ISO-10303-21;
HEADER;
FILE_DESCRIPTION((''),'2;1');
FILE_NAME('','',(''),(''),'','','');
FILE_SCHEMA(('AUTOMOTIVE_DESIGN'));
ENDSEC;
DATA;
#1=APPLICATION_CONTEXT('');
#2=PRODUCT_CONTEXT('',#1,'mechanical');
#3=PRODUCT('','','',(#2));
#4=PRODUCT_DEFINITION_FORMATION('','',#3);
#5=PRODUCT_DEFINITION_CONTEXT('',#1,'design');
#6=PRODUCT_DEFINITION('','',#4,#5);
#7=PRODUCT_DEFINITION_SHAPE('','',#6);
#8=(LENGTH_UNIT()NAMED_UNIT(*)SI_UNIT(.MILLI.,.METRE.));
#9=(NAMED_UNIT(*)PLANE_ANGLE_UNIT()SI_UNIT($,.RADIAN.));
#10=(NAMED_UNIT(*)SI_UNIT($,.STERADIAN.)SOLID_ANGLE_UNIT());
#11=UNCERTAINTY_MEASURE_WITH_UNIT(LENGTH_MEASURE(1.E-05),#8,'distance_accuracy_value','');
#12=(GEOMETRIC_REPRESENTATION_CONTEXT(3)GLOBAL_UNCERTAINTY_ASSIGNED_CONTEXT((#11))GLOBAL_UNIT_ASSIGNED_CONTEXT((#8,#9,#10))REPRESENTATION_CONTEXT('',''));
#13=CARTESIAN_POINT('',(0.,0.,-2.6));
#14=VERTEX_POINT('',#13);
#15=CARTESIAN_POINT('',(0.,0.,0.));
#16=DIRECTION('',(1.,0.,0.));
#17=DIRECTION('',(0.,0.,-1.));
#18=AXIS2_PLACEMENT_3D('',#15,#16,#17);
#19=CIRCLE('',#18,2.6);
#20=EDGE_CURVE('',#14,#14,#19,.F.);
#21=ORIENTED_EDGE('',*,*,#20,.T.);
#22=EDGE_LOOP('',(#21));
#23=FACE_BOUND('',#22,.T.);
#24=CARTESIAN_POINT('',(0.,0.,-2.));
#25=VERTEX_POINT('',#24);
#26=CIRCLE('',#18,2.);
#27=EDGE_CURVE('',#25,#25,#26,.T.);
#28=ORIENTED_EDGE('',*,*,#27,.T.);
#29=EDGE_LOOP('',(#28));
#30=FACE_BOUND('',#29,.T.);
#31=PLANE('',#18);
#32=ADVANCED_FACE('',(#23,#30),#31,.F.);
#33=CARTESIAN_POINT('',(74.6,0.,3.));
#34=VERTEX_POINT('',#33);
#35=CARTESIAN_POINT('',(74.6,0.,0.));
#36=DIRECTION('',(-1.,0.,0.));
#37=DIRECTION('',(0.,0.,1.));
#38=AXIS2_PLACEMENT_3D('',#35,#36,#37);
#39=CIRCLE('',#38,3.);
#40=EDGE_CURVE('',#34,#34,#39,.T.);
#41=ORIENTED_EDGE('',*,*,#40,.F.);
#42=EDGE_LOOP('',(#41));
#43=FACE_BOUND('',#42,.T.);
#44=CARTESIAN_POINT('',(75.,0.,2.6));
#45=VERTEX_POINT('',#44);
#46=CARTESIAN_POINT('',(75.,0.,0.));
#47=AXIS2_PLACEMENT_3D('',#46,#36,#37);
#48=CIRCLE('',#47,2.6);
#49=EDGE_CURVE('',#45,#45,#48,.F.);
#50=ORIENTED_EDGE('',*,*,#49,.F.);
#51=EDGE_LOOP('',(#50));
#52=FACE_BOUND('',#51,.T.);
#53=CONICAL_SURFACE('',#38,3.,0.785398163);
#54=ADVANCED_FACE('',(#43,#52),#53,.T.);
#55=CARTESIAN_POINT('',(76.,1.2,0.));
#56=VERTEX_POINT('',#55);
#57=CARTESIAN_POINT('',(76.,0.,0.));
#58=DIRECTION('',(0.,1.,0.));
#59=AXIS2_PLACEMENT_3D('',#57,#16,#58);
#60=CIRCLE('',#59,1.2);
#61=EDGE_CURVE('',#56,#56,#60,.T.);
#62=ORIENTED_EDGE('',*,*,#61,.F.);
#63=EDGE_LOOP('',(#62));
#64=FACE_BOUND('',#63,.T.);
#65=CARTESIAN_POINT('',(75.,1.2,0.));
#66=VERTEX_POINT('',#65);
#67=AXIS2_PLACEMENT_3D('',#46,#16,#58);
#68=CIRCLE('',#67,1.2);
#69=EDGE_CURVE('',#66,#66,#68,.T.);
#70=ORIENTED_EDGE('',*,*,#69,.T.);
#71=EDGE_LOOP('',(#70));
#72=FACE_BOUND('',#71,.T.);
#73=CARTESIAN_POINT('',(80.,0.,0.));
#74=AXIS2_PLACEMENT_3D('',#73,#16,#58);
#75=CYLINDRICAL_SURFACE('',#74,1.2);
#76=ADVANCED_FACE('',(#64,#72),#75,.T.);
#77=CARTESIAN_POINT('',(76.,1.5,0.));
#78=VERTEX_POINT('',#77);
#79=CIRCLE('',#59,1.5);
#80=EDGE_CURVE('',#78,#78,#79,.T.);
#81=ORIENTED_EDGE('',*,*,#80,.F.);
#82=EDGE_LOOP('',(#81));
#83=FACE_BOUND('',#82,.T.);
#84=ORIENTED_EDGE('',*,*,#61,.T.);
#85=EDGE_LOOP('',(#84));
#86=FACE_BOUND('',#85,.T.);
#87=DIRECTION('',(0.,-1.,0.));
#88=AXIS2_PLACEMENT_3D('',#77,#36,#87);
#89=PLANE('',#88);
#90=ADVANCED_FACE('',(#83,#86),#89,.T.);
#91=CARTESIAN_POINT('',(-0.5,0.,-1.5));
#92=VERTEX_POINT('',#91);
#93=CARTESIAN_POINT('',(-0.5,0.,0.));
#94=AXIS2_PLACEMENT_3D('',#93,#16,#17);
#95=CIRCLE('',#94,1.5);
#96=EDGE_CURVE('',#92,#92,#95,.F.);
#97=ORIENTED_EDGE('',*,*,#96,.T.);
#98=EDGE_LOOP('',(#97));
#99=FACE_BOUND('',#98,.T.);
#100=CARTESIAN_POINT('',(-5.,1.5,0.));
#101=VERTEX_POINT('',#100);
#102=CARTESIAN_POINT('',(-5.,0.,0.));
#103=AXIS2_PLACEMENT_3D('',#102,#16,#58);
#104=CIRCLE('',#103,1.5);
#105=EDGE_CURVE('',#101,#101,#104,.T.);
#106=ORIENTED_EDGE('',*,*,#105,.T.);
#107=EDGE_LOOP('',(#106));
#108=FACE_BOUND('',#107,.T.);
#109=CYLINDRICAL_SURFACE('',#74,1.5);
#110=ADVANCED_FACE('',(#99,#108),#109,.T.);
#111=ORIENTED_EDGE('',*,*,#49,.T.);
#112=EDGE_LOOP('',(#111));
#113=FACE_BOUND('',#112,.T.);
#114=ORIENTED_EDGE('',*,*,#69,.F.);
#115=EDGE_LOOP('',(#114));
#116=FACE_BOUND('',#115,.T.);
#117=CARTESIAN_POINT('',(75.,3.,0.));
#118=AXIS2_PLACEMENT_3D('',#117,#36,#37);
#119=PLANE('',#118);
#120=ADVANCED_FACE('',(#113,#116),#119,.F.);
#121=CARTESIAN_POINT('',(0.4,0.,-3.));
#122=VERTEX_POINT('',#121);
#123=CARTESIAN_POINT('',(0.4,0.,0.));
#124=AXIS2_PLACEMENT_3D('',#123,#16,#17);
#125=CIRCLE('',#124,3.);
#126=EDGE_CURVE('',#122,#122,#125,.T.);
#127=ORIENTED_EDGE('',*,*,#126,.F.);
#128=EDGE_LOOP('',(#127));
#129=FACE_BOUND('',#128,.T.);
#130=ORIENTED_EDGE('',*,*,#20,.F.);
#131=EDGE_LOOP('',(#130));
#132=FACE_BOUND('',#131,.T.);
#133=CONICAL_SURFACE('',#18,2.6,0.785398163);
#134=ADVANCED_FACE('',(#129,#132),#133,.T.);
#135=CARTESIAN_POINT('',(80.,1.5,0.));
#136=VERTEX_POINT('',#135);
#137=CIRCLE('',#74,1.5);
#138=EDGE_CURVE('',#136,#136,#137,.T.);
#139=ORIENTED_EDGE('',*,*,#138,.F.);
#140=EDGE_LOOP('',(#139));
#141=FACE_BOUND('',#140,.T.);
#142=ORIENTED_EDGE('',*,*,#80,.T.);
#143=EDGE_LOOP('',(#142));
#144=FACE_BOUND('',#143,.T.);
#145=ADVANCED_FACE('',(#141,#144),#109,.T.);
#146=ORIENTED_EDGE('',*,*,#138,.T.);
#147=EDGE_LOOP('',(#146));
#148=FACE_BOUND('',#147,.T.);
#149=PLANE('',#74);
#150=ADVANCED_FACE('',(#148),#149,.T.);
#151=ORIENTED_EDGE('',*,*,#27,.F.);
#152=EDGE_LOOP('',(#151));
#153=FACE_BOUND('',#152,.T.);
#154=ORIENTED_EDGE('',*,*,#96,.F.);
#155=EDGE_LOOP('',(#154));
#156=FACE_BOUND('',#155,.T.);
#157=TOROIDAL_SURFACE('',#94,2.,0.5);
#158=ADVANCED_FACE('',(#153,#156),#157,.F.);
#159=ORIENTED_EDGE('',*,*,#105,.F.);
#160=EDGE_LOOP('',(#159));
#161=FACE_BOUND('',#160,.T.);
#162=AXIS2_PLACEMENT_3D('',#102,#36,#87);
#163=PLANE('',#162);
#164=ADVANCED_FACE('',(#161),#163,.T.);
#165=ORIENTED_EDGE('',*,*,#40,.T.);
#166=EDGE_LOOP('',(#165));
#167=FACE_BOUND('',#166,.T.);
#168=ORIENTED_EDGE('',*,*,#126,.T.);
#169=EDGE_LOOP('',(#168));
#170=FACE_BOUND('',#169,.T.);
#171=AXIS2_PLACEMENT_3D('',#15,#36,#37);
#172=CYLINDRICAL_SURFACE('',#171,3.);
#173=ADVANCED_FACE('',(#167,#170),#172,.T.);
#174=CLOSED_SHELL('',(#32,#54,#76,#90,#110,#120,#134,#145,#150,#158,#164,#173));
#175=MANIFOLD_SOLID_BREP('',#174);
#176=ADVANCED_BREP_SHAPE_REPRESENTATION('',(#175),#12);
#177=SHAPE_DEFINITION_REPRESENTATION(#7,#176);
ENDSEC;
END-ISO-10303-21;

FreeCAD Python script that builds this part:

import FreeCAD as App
import Part
import Sketcher
from FreeCAD import Vector
Q = App.Units.Quantity


def edges_at(feature, points):
    """Names of the edges that pass closest to the given points."""
    edges = feature.Shape.Edges
    near = lambda p: min(range(len(edges)), key=lambda i: edges[i].distToShape(Part.Vertex(*p))[0])
    return sorted({f"Edge{near(p) + 1}" for p in points})

doc = App.newDocument("Part")
params = doc.addObject("Spreadsheet::Sheet", "Params")
for row, (alias, value) in enumerate([
    ("sketch1_width", "75 mm"),
    ("sketch1_height", "3 mm"),
    ("revolution_angle", "360 deg"),
    ("chamfer_size", "0.4 mm"),
    ("sketch2_width", "4 mm"),
    ("sketch2_width2", "1 mm"),
    ("sketch2_height", "1.5 mm"),
    ("sketch2_height2", "0.3 mm"),
    ("revolution2_angle", "360 deg"),
    ("fillet_radius", "0.5 mm"),
    ("chamfer2_size", "0.4 mm"),
], start=1):
    params.set(f"A{row}", alias)
    params.set(f"B{row}", "=" + value)
    params.setAlias(f"B{row}", alias)

body = doc.addObject("PartDesign::Body", "Body")

# Sketch on XY plane
sketch1 = doc.addObject("Sketcher::SketchObject", "Sketch")
body.addObject(sketch1)
sketch1.AttachmentSupport = (doc.XY_Plane, [""])
sketch1.MapMode = "FlatFace"
sketch1.addGeometry([
    Part.LineSegment(Vector(0, 3, 0), Vector(0, 0, 0)),
    Part.LineSegment(Vector(0, 0, 0), Vector(75, 0, 0)),
    Part.LineSegment(Vector(75, 0, 0), Vector(75, 3, 0)),
    Part.LineSegment(Vector(75, 3, 0), Vector(0, 3, 0)),
], False)
sketch1.addConstraint([
    Sketcher.Constraint("Coincident", 0, 2, 1, 1),
    Sketcher.Constraint("Coincident", 1, 2, 2, 1),
    Sketcher.Constraint("Coincident", 2, 2, 3, 1),
    Sketcher.Constraint("Coincident", 3, 2, 0, 1),
    Sketcher.Constraint("Vertical", 0),
    Sketcher.Constraint("Horizontal", 1),
    Sketcher.Constraint("Vertical", 2),
    Sketcher.Constraint("Horizontal", 3),
    Sketcher.Constraint("Coincident", 0, 2, -1, 1),
    Sketcher.Constraint("DistanceX", 1, 1, 1, 2, Q("75 mm")),
    Sketcher.Constraint("DistanceY", 0, 2, 0, 1, Q("3 mm")),
])
sketch1.setExpression("Constraints[9]", "Params.sketch1_width")
sketch1.setExpression("Constraints[10]", "Params.sketch1_height")
revolution = doc.addObject("PartDesign::Revolution", "Revolution")
body.addObject(revolution)
revolution.Profile = sketch1
revolution.ReferenceAxis = (sketch1, ["H_Axis"])
revolution.setExpression("Angle", "Params.revolution_angle")
doc.recompute()

chamfer = doc.addObject("PartDesign::Chamfer", "Chamfer")
body.addObject(chamfer)
chamfer.Base = (revolution, edges_at(revolution, [(0, 0, -3)]))
chamfer.setExpression("Size", "Params.chamfer_size")

# Sketch on XY plane
sketch2 = doc.addObject("Sketcher::SketchObject", "Sketch001")
body.addObject(sketch2)
sketch2.AttachmentSupport = (doc.XY_Plane, [""])
sketch2.MapMode = "FlatFace"
sketch2.addGeometry([
    Part.LineSegment(Vector(80, 0, 0), Vector(80, 1.5, 0)),  # 0
    Part.LineSegment(Vector(80, 1.5, 0), Vector(76, 1.5, 0)),  # 1
    Part.LineSegment(Vector(76, 1.5, 0), Vector(76, 1.2, 0)),  # 2
    Part.LineSegment(Vector(76, 1.2, 0), Vector(75, 1.2, 0)),  # 3
    Part.LineSegment(Vector(75, 1.2, 0), Vector(75, 0, 0)),  # 4
    Part.LineSegment(Vector(75, 0, 0), Vector(80, 0, 0)),  # 5
    Part.LineSegment(Vector(-5, 1.5, 0), Vector(-5, 0, 0)),  # 6
    Part.LineSegment(Vector(-5, 0, 0), Vector(0, 0, 0)),  # 7
    Part.LineSegment(Vector(0, 0, 0), Vector(0, 1.5, 0)),  # 8
    Part.LineSegment(Vector(0, 1.5, 0), Vector(-5, 1.5, 0)),  # 9
], False)
sketch2.addConstraint([
    Sketcher.Constraint("Coincident", 0, 2, 1, 1),
    Sketcher.Constraint("Coincident", 1, 2, 2, 1),
    Sketcher.Constraint("Coincident", 2, 2, 3, 1),
    Sketcher.Constraint("Coincident", 3, 2, 4, 1),
    Sketcher.Constraint("Coincident", 4, 2, 5, 1),
    Sketcher.Constraint("Coincident", 5, 2, 0, 1),
    Sketcher.Constraint("Coincident", 6, 2, 7, 1),
    Sketcher.Constraint("Coincident", 7, 2, 8, 1),
    Sketcher.Constraint("Coincident", 8, 2, 9, 1),
    Sketcher.Constraint("Coincident", 9, 2, 6, 1),
    Sketcher.Constraint("Vertical", 0),
    Sketcher.Constraint("Horizontal", 1),
    Sketcher.Constraint("Vertical", 2),
    Sketcher.Constraint("Horizontal", 3),
    Sketcher.Constraint("Vertical", 4),
    Sketcher.Constraint("Horizontal", 5),
    Sketcher.Constraint("Vertical", 6),
    Sketcher.Constraint("Horizontal", 7),
    Sketcher.Constraint("Vertical", 8),
    Sketcher.Constraint("Horizontal", 9),
    Sketcher.Constraint("Coincident", 7, 2, -1, 1),
    Sketcher.Constraint("PointOnObject", 4, 2, -1),
    Sketcher.Constraint("Horizontal", 1, 2, 8, 2),
    Sketcher.Constraint("Equal", 5, 7),
    Sketcher.Constraint("DistanceX", 1, 2, 1, 1, Q("4 mm")),
    Sketcher.Constraint("DistanceX", 3, 2, 3, 1, Q("1 mm")),
    Sketcher.Constraint("DistanceY", 0, 1, 0, 2, Q("1.5 mm")),
    Sketcher.Constraint("DistanceY", 2, 2, 2, 1, Q("0.3 mm")),
    Sketcher.Constraint("DistanceX", -1, 1, 0, 2, Q("80 mm")),
])
sketch2.setExpression("Constraints[24]", "Params.sketch2_width")
sketch2.setExpression("Constraints[25]", "Params.sketch2_width2")
sketch2.setExpression("Constraints[26]", "Params.sketch2_height")
sketch2.setExpression("Constraints[27]", "Params.sketch2_height2")
revolution2 = doc.addObject("PartDesign::Revolution", "Revolution001")
body.addObject(revolution2)
revolution2.Profile = sketch2
revolution2.ReferenceAxis = (sketch2, ["H_Axis"])
revolution2.setExpression("Angle", "Params.revolution2_angle")
doc.recompute()

fillet = doc.addObject("PartDesign::Fillet", "Fillet")
body.addObject(fillet)
fillet.Base = (revolution2, edges_at(revolution2, [(0, -1.5, 0)]))
fillet.setExpression("Radius", "Params.fillet_radius")
doc.recompute()

chamfer2 = doc.addObject("PartDesign::Chamfer", "Chamfer001")
body.addObject(chamfer2)
chamfer2.Base = (fillet, edges_at(fillet, [(75, 0, -3)]))
chamfer2.setExpression("Size", "Params.chamfer2_size")

doc.recompute()
